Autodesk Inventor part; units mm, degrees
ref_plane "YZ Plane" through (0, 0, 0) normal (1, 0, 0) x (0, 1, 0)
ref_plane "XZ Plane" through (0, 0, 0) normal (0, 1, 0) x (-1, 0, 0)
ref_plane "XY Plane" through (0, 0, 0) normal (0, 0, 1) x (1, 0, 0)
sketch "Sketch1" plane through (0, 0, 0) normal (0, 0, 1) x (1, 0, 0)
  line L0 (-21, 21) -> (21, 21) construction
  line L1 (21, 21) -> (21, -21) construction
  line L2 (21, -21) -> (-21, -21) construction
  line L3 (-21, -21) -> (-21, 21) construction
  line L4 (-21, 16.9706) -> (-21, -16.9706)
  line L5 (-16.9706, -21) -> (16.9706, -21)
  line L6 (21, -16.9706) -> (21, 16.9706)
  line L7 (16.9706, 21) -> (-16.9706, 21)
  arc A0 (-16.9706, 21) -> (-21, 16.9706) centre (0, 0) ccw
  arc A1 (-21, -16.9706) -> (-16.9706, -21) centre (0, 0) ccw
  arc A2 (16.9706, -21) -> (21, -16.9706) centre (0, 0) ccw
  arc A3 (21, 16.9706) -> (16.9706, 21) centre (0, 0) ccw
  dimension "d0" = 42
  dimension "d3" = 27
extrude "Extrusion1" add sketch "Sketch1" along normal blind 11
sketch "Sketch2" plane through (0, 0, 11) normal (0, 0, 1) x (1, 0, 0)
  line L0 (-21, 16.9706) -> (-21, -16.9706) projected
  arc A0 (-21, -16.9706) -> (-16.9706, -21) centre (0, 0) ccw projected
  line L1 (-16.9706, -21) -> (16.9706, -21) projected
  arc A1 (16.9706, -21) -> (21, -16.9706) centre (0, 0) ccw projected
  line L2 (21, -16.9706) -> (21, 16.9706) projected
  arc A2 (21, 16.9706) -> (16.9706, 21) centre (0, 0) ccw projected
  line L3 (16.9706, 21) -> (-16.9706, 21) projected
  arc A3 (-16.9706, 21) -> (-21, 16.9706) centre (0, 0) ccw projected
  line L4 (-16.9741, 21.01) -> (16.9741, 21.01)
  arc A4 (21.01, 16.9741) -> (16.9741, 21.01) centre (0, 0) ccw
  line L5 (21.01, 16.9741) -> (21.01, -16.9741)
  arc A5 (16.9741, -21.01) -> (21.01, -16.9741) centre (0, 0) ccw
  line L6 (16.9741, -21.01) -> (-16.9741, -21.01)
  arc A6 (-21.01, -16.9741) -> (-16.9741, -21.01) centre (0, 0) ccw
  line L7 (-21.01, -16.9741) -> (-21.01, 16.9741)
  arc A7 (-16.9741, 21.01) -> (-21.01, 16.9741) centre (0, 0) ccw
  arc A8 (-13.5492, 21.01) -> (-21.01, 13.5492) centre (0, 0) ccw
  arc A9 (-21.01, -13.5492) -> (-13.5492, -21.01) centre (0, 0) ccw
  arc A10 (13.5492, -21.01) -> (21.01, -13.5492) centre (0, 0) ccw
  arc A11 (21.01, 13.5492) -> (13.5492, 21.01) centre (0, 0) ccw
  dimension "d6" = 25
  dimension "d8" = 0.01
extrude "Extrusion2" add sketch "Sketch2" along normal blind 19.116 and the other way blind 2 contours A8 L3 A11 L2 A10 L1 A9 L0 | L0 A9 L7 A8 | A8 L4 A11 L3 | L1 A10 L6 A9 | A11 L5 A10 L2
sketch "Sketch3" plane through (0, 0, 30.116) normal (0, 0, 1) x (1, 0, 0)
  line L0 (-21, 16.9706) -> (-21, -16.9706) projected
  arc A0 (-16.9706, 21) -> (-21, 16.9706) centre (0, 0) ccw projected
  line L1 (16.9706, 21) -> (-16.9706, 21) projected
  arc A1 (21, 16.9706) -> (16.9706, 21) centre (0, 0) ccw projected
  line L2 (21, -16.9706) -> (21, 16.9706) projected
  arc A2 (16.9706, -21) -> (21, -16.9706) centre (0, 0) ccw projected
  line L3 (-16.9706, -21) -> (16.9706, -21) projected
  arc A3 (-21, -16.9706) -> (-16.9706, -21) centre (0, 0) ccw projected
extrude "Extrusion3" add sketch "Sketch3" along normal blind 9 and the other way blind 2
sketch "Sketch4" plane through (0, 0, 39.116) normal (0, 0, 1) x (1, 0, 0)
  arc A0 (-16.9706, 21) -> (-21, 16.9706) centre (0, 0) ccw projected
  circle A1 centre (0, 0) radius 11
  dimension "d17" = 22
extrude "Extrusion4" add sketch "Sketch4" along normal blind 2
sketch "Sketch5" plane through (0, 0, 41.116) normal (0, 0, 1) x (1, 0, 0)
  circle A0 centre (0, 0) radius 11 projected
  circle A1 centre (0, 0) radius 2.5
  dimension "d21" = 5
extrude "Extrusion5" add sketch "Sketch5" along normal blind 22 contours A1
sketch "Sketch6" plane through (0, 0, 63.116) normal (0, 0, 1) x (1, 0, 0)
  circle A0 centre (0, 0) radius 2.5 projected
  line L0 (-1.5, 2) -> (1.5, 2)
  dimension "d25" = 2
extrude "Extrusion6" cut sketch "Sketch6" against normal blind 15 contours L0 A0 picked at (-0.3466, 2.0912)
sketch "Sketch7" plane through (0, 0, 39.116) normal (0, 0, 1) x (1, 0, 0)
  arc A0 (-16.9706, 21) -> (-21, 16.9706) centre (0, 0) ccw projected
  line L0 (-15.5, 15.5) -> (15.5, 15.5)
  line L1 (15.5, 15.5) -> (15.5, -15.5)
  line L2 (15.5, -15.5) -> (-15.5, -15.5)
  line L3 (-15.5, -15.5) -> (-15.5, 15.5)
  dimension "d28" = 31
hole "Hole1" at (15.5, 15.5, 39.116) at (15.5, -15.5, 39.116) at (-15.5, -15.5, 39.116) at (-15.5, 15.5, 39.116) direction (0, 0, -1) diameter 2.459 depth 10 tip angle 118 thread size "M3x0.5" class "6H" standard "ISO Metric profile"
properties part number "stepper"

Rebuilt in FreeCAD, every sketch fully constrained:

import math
import FreeCAD as App
import Part
import Sketcher

V = App.Vector
Q = App.Units.Quantity

doc = App.newDocument("Part")
body = doc.addObject("PartDesign::Body", "Body")

sketch1 = doc.addObject("Sketcher::SketchObject", "Sketch")
body.addObject(sketch1)
sketch1.AttachmentSupport = (doc.XY_Plane, [""])
sketch1.MapMode = "FlatFace"
sketch1.addGeometry(Part.ArcOfCircle(Part.Circle(V(0, 0, 0), V(0, 0, 1), 27), math.radians(128.94), math.radians(141.06)), False)
sketch1.addGeometry(Part.LineSegment(V(-21, 17, 0), V(-21, -17, 0)), False)
sketch1.addGeometry(Part.ArcOfCircle(Part.Circle(V(0, 0, 0), V(0, 0, 1), 27), math.radians(-141.06), math.radians(-128.94)), False)
sketch1.addGeometry(Part.LineSegment(V(-17, -21, 0), V(17, -21, 0)), False)
sketch1.addGeometry(Part.ArcOfCircle(Part.Circle(V(0, 0, 0), V(0, 0, 1), 27), math.radians(-51.06), math.radians(-38.94)), False)
sketch1.addGeometry(Part.LineSegment(V(21, -17, 0), V(21, 17, 0)), False)
sketch1.addGeometry(Part.ArcOfCircle(Part.Circle(V(0, 0, 0), V(0, 0, 1), 27), math.radians(38.94), math.radians(51.06)), False)
sketch1.addGeometry(Part.LineSegment(V(17, 21, 0), V(-17, 21, 0)), False)
sketch1.addConstraint(Sketcher.Constraint("Coincident", 0, 2, 1, 1))
sketch1.addConstraint(Sketcher.Constraint("Coincident", 1, 2, 2, 1))
sketch1.addConstraint(Sketcher.Constraint("Coincident", 2, 2, 3, 1))
sketch1.addConstraint(Sketcher.Constraint("Coincident", 3, 2, 4, 1))
sketch1.addConstraint(Sketcher.Constraint("Coincident", 4, 2, 5, 1))
sketch1.addConstraint(Sketcher.Constraint("Coincident", 5, 2, 6, 1))
sketch1.addConstraint(Sketcher.Constraint("Coincident", 6, 2, 7, 1))
sketch1.addConstraint(Sketcher.Constraint("Coincident", 7, 2, 0, 1))
sketch1.addConstraint(Sketcher.Constraint("Vertical", 1))
sketch1.addConstraint(Sketcher.Constraint("Horizontal", 3))
sketch1.addConstraint(Sketcher.Constraint("Vertical", 5))
sketch1.addConstraint(Sketcher.Constraint("Horizontal", 7))
sketch1.addConstraint(Sketcher.Constraint("Coincident", 0, 3, -1, 1))
sketch1.addConstraint(Sketcher.Constraint("Coincident", 2, 3, -1, 1))
sketch1.addConstraint(Sketcher.Constraint("Coincident", 4, 3, -1, 1))
sketch1.addConstraint(Sketcher.Constraint("Coincident", 6, 3, -1, 1))
sketch1.addConstraint(Sketcher.Constraint("Equal", 0, 2))
sketch1.addConstraint(Sketcher.Constraint("Equal", 2, 4))
sketch1.addConstraint(Sketcher.Constraint("Equal", 4, 6))
sketch1.addConstraint(Sketcher.Constraint("Horizontal", 1, 2, 4, 2))
sketch1.addConstraint(Sketcher.Constraint("Vertical", 3, 2, 6, 2))
sketch1.addConstraint(Sketcher.Constraint("Equal", 7, 1))
sketch1.addConstraint(Sketcher.Constraint("Radius", 0, Q("27 mm")))
sketch1.addConstraint(Sketcher.Constraint("DistanceX", 0, 2, -1, 1, Q("21 mm")))
pad1 = doc.addObject("PartDesign::Pad", "Pad")
body.addObject(pad1)
pad1.Profile = sketch1
pad1.Length = 11

sketch2 = doc.addObject("Sketcher::SketchObject", "Sketch001")
body.addObject(sketch2)
sketch2.AttachmentSupport = (doc.XY_Plane, [""])
sketch2.MapMode = "FlatFace"
sketch2.AttachmentOffset = App.Placement(V(0, 0, 11), App.Rotation())
sketch2.addGeometry(Part.LineSegment(V(-21, 14, 0), V(-21, -14, 0)), False)
sketch2.addGeometry(Part.ArcOfCircle(Part.Circle(V(0, 0, 0), V(0, 0, 1), 25), math.radians(-147), math.radians(-123)), False)
sketch2.addGeometry(Part.LineSegment(V(-14, -21, 0), V(14, -21, 0)), False)
sketch2.addGeometry(Part.ArcOfCircle(Part.Circle(V(0, 0, 0), V(0, 0, 1), 25), math.radians(-57), math.radians(-33)), False)
sketch2.addGeometry(Part.LineSegment(V(21, -14, 0), V(21, 14, 0)), False)
sketch2.addGeometry(Part.ArcOfCircle(Part.Circle(V(0, 0, 0), V(0, 0, 1), 25), math.radians(33), math.radians(57)), False)
sketch2.addGeometry(Part.LineSegment(V(14, 21, 0), V(-14, 21, 0)), False)
sketch2.addGeometry(Part.ArcOfCircle(Part.Circle(V(0, 0, 0), V(0, 0, 1), 25), math.radians(123), math.radians(147)), False)
sketch2.addConstraint(Sketcher.Constraint("Coincident", 0, 2, 1, 1))
sketch2.addConstraint(Sketcher.Constraint("Coincident", 1, 2, 2, 1))
sketch2.addConstraint(Sketcher.Constraint("Coincident", 2, 2, 3, 1))
sketch2.addConstraint(Sketcher.Constraint("Coincident", 3, 2, 4, 1))
sketch2.addConstraint(Sketcher.Constraint("Coincident", 4, 2, 5, 1))
sketch2.addConstraint(Sketcher.Constraint("Coincident", 5, 2, 6, 1))
sketch2.addConstraint(Sketcher.Constraint("Coincident", 6, 2, 7, 1))
sketch2.addConstraint(Sketcher.Constraint("Coincident", 7, 2, 0, 1))
sketch2.addConstraint(Sketcher.Constraint("Vertical", 0))
sketch2.addConstraint(Sketcher.Constraint("Horizontal", 2))
sketch2.addConstraint(Sketcher.Constraint("Vertical", 4))
sketch2.addConstraint(Sketcher.Constraint("Horizontal", 6))
sketch2.addConstraint(Sketcher.Constraint("Coincident", 1, 3, -1, 1))
sketch2.addConstraint(Sketcher.Constraint("Coincident", 3, 3, -1, 1))
sketch2.addConstraint(Sketcher.Constraint("Coincident", 5, 3, -1, 1))
sketch2.addConstraint(Sketcher.Constraint("Coincident", 7, 3, -1, 1))
sketch2.addConstraint(Sketcher.Constraint("Equal", 1, 3))
sketch2.addConstraint(Sketcher.Constraint("Equal", 3, 5))
sketch2.addConstraint(Sketcher.Constraint("Equal", 5, 7))
sketch2.addConstraint(Sketcher.Constraint("Horizontal", 0, 2, 3, 2))
sketch2.addConstraint(Sketcher.Constraint("Vertical", 2, 2, 5, 2))
sketch2.addConstraint(Sketcher.Constraint("Equal", 6, 0))
sketch2.addConstraint(Sketcher.Constraint("Radius", 1, Q("25 mm")))
sketch2.addConstraint(Sketcher.Constraint("DistanceX", 0, 2, -1, 1, Q("21.01 mm")))
pad2 = doc.addObject("PartDesign::Pad", "Pad001")
body.addObject(pad2)
pad2.Profile = sketch2
pad2.Type = "TwoLengths"
pad2.Length = 19.116
pad2.Length2 = 2

sketch3 = doc.addObject("Sketcher::SketchObject", "Sketch002")
body.addObject(sketch3)
sketch3.AttachmentSupport = (doc.XY_Plane, [""])
sketch3.MapMode = "FlatFace"
sketch3.AttachmentOffset = App.Placement(V(0, 0, 30.116), App.Rotation())
sketch3.addGeometry(Part.ArcOfCircle(Part.Circle(V(0, 0, 0), V(0, 0, 1), 27), math.radians(128.94), math.radians(141.06)), False)
sketch3.addGeometry(Part.LineSegment(V(-21, 17, 0), V(-21, -17, 0)), False)
sketch3.addGeometry(Part.ArcOfCircle(Part.Circle(V(0, 0, 0), V(0, 0, 1), 27), math.radians(-141.06), math.radians(-128.94)), False)
sketch3.addGeometry(Part.LineSegment(V(-17, -21, 0), V(17, -21, 0)), False)
sketch3.addGeometry(Part.ArcOfCircle(Part.Circle(V(0, 0, 0), V(0, 0, 1), 27), math.radians(-51.06), math.radians(-38.94)), False)
sketch3.addGeometry(Part.LineSegment(V(21, -17, 0), V(21, 17, 0)), False)
sketch3.addGeometry(Part.ArcOfCircle(Part.Circle(V(0, 0, 0), V(0, 0, 1), 27), math.radians(38.94), math.radians(51.06)), False)
sketch3.addGeometry(Part.LineSegment(V(17, 21, 0), V(-17, 21, 0)), False)
sketch3.addConstraint(Sketcher.Constraint("Coincident", 0, 2, 1, 1))
sketch3.addConstraint(Sketcher.Constraint("Coincident", 1, 2, 2, 1))
sketch3.addConstraint(Sketcher.Constraint("Coincident", 2, 2, 3, 1))
sketch3.addConstraint(Sketcher.Constraint("Coincident", 3, 2, 4, 1))
sketch3.addConstraint(Sketcher.Constraint("Coincident", 4, 2, 5, 1))
sketch3.addConstraint(Sketcher.Constraint("Coincident", 5, 2, 6, 1))
sketch3.addConstraint(Sketcher.Constraint("Coincident", 6, 2, 7, 1))
sketch3.addConstraint(Sketcher.Constraint("Coincident", 7, 2, 0, 1))
sketch3.addConstraint(Sketcher.Constraint("Vertical", 1))
sketch3.addConstraint(Sketcher.Constraint("Horizontal", 3))
sketch3.addConstraint(Sketcher.Constraint("Vertical", 5))
sketch3.addConstraint(Sketcher.Constraint("Horizontal", 7))
sketch3.addConstraint(Sketcher.Constraint("Coincident", 0, 3, -1, 1))
sketch3.addConstraint(Sketcher.Constraint("Coincident", 2, 3, -1, 1))
sketch3.addConstraint(Sketcher.Constraint("Coincident", 4, 3, -1, 1))
sketch3.addConstraint(Sketcher.Constraint("Coincident", 6, 3, -1, 1))
sketch3.addConstraint(Sketcher.Constraint("Equal", 0, 2))
sketch3.addConstraint(Sketcher.Constraint("Equal", 2, 4))
sketch3.addConstraint(Sketcher.Constraint("Equal", 4, 6))
sketch3.addConstraint(Sketcher.Constraint("Horizontal", 1, 2, 4, 2))
sketch3.addConstraint(Sketcher.Constraint("Vertical", 3, 2, 6, 2))
sketch3.addConstraint(Sketcher.Constraint("Equal", 7, 1))
sketch3.addConstraint(Sketcher.Constraint("Radius", 0, Q("27 mm")))
sketch3.addConstraint(Sketcher.Constraint("DistanceX", 0, 2, -1, 1, Q("21 mm")))
pad3 = doc.addObject("PartDesign::Pad", "Pad002")
body.addObject(pad3)
pad3.Profile = sketch3
pad3.Type = "TwoLengths"
pad3.Length = 9
pad3.Length2 = 2

sketch4 = doc.addObject("Sketcher::SketchObject", "Sketch003")
body.addObject(sketch4)
sketch4.AttachmentSupport = (doc.XY_Plane, [""])
sketch4.MapMode = "FlatFace"
sketch4.AttachmentOffset = App.Placement(V(0, 0, 39.116), App.Rotation())
sketch4.addGeometry(Part.Circle(V(0, 0, 0), V(0, 0, 1), 11), False)
sketch4.addConstraint(Sketcher.Constraint("Coincident", 0, 3, -1, 1))
sketch4.addConstraint(Sketcher.Constraint("Diameter", 0, Q("22 mm")))
pad4 = doc.addObject("PartDesign::Pad", "Pad003")
body.addObject(pad4)
pad4.Profile = sketch4
pad4.Length = 2

sketch5 = doc.addObject("Sketcher::SketchObject", "Sketch004")
body.addObject(sketch5)
sketch5.AttachmentSupport = (doc.XY_Plane, [""])
sketch5.MapMode = "FlatFace"
sketch5.AttachmentOffset = App.Placement(V(0, 0, 41.116), App.Rotation())
sketch5.addGeometry(Part.Circle(V(0, 0, 0), V(0, 0, 1), 2.5), False)
sketch5.addConstraint(Sketcher.Constraint("Coincident", 0, 3, -1, 1))
sketch5.addConstraint(Sketcher.Constraint("Diameter", 0, Q("5 mm")))
pad5 = doc.addObject("PartDesign::Pad", "Pad004")
body.addObject(pad5)
pad5.Profile = sketch5
pad5.Length = 22

sketch6 = doc.addObject("Sketcher::SketchObject", "Sketch005")
body.addObject(sketch6)
sketch6.AttachmentSupport = (doc.XY_Plane, [""])
sketch6.MapMode = "FlatFace"
sketch6.AttachmentOffset = App.Placement(V(0, 0, 63.116), App.Rotation())
sketch6.addGeometry(Part.LineSegment(V(-1.5, 2, 0), V(1.5, 2, 0)), False)
sketch6.addGeometry(Part.ArcOfCircle(Part.Circle(V(0, 0, 0), V(0, 0, 1), 2.5), math.radians(53), math.radians(127)), False)
sketch6.addConstraint(Sketcher.Constraint("Coincident", 0, 1, 1, 2))
sketch6.addConstraint(Sketcher.Constraint("Coincident", 1, 1, 0, 2))
sketch6.addConstraint(Sketcher.Constraint("Horizontal", 0))
sketch6.addConstraint(Sketcher.Constraint("Coincident", 1, 3, -1, 1))
sketch6.addConstraint(Sketcher.Constraint("DistanceY", -1, 1, 0, 1, Q("2 mm")))
sketch6.addConstraint(Sketcher.Constraint("Radius", 1, Q("2.5 mm")))
pocket1 = doc.addObject("PartDesign::Pocket", "Pocket")
body.addObject(pocket1)
pocket1.Profile = sketch6
pocket1.Length = 15

sketch7 = doc.addObject("Sketcher::SketchObject", "Sketch006")
body.addObject(sketch7)
sketch7.AttachmentSupport = (doc.XY_Plane, [""])
sketch7.MapMode = "FlatFace"
sketch7.AttachmentOffset = App.Placement(V(0, 0, 39.116), App.Rotation())
sketch7.addGeometry(Part.Circle(V(15.5, 15.5, 0), V(0, 0, 1), 1.2), False)
sketch7.addGeometry(Part.Circle(V(15.5, -15.5, 0), V(0, 0, 1), 1.2), False)
sketch7.addGeometry(Part.Circle(V(-15.5, -15.5, 0), V(0, 0, 1), 1.2), False)
sketch7.addGeometry(Part.Circle(V(-15.5, 15.5, 0), V(0, 0, 1), 1.2), False)
sketch7.addConstraint(Sketcher.Constraint("Equal", 0, 1))
sketch7.addConstraint(Sketcher.Constraint("Equal", 1, 2))
sketch7.addConstraint(Sketcher.Constraint("Equal", 2, 3))
sketch7.addConstraint(Sketcher.Constraint("Symmetric", 0, 3, 2, 3, -1, 1))
sketch7.addConstraint(Sketcher.Constraint("Symmetric", 1, 3, 3, 3, -1, 1))
sketch7.addConstraint(Sketcher.Constraint("Symmetric", 1, 3, 2, 3, -2))
sketch7.addConstraint(Sketcher.Constraint("Diameter", 0, Q("2.459 mm")))
sketch7.addConstraint(Sketcher.Constraint("DistanceY", 1, 3, 0, 3, Q("31 mm")))
sketch7.addConstraint(Sketcher.Constraint("DistanceX", 2, 3, 1, 3, Q("31 mm")))
doc.recompute()
hole = doc.addObject("PartDesign::Hole", "Hole")
body.addObject(hole)
hole.Profile = sketch7
hole.ThreadType = "None"
hole.Diameter = 2.459
hole.DepthType = "Dimension"
hole.Depth = 10
hole.DrillPoint = "Angled"
hole.DrillPointAngle = 118

doc.recompute()
